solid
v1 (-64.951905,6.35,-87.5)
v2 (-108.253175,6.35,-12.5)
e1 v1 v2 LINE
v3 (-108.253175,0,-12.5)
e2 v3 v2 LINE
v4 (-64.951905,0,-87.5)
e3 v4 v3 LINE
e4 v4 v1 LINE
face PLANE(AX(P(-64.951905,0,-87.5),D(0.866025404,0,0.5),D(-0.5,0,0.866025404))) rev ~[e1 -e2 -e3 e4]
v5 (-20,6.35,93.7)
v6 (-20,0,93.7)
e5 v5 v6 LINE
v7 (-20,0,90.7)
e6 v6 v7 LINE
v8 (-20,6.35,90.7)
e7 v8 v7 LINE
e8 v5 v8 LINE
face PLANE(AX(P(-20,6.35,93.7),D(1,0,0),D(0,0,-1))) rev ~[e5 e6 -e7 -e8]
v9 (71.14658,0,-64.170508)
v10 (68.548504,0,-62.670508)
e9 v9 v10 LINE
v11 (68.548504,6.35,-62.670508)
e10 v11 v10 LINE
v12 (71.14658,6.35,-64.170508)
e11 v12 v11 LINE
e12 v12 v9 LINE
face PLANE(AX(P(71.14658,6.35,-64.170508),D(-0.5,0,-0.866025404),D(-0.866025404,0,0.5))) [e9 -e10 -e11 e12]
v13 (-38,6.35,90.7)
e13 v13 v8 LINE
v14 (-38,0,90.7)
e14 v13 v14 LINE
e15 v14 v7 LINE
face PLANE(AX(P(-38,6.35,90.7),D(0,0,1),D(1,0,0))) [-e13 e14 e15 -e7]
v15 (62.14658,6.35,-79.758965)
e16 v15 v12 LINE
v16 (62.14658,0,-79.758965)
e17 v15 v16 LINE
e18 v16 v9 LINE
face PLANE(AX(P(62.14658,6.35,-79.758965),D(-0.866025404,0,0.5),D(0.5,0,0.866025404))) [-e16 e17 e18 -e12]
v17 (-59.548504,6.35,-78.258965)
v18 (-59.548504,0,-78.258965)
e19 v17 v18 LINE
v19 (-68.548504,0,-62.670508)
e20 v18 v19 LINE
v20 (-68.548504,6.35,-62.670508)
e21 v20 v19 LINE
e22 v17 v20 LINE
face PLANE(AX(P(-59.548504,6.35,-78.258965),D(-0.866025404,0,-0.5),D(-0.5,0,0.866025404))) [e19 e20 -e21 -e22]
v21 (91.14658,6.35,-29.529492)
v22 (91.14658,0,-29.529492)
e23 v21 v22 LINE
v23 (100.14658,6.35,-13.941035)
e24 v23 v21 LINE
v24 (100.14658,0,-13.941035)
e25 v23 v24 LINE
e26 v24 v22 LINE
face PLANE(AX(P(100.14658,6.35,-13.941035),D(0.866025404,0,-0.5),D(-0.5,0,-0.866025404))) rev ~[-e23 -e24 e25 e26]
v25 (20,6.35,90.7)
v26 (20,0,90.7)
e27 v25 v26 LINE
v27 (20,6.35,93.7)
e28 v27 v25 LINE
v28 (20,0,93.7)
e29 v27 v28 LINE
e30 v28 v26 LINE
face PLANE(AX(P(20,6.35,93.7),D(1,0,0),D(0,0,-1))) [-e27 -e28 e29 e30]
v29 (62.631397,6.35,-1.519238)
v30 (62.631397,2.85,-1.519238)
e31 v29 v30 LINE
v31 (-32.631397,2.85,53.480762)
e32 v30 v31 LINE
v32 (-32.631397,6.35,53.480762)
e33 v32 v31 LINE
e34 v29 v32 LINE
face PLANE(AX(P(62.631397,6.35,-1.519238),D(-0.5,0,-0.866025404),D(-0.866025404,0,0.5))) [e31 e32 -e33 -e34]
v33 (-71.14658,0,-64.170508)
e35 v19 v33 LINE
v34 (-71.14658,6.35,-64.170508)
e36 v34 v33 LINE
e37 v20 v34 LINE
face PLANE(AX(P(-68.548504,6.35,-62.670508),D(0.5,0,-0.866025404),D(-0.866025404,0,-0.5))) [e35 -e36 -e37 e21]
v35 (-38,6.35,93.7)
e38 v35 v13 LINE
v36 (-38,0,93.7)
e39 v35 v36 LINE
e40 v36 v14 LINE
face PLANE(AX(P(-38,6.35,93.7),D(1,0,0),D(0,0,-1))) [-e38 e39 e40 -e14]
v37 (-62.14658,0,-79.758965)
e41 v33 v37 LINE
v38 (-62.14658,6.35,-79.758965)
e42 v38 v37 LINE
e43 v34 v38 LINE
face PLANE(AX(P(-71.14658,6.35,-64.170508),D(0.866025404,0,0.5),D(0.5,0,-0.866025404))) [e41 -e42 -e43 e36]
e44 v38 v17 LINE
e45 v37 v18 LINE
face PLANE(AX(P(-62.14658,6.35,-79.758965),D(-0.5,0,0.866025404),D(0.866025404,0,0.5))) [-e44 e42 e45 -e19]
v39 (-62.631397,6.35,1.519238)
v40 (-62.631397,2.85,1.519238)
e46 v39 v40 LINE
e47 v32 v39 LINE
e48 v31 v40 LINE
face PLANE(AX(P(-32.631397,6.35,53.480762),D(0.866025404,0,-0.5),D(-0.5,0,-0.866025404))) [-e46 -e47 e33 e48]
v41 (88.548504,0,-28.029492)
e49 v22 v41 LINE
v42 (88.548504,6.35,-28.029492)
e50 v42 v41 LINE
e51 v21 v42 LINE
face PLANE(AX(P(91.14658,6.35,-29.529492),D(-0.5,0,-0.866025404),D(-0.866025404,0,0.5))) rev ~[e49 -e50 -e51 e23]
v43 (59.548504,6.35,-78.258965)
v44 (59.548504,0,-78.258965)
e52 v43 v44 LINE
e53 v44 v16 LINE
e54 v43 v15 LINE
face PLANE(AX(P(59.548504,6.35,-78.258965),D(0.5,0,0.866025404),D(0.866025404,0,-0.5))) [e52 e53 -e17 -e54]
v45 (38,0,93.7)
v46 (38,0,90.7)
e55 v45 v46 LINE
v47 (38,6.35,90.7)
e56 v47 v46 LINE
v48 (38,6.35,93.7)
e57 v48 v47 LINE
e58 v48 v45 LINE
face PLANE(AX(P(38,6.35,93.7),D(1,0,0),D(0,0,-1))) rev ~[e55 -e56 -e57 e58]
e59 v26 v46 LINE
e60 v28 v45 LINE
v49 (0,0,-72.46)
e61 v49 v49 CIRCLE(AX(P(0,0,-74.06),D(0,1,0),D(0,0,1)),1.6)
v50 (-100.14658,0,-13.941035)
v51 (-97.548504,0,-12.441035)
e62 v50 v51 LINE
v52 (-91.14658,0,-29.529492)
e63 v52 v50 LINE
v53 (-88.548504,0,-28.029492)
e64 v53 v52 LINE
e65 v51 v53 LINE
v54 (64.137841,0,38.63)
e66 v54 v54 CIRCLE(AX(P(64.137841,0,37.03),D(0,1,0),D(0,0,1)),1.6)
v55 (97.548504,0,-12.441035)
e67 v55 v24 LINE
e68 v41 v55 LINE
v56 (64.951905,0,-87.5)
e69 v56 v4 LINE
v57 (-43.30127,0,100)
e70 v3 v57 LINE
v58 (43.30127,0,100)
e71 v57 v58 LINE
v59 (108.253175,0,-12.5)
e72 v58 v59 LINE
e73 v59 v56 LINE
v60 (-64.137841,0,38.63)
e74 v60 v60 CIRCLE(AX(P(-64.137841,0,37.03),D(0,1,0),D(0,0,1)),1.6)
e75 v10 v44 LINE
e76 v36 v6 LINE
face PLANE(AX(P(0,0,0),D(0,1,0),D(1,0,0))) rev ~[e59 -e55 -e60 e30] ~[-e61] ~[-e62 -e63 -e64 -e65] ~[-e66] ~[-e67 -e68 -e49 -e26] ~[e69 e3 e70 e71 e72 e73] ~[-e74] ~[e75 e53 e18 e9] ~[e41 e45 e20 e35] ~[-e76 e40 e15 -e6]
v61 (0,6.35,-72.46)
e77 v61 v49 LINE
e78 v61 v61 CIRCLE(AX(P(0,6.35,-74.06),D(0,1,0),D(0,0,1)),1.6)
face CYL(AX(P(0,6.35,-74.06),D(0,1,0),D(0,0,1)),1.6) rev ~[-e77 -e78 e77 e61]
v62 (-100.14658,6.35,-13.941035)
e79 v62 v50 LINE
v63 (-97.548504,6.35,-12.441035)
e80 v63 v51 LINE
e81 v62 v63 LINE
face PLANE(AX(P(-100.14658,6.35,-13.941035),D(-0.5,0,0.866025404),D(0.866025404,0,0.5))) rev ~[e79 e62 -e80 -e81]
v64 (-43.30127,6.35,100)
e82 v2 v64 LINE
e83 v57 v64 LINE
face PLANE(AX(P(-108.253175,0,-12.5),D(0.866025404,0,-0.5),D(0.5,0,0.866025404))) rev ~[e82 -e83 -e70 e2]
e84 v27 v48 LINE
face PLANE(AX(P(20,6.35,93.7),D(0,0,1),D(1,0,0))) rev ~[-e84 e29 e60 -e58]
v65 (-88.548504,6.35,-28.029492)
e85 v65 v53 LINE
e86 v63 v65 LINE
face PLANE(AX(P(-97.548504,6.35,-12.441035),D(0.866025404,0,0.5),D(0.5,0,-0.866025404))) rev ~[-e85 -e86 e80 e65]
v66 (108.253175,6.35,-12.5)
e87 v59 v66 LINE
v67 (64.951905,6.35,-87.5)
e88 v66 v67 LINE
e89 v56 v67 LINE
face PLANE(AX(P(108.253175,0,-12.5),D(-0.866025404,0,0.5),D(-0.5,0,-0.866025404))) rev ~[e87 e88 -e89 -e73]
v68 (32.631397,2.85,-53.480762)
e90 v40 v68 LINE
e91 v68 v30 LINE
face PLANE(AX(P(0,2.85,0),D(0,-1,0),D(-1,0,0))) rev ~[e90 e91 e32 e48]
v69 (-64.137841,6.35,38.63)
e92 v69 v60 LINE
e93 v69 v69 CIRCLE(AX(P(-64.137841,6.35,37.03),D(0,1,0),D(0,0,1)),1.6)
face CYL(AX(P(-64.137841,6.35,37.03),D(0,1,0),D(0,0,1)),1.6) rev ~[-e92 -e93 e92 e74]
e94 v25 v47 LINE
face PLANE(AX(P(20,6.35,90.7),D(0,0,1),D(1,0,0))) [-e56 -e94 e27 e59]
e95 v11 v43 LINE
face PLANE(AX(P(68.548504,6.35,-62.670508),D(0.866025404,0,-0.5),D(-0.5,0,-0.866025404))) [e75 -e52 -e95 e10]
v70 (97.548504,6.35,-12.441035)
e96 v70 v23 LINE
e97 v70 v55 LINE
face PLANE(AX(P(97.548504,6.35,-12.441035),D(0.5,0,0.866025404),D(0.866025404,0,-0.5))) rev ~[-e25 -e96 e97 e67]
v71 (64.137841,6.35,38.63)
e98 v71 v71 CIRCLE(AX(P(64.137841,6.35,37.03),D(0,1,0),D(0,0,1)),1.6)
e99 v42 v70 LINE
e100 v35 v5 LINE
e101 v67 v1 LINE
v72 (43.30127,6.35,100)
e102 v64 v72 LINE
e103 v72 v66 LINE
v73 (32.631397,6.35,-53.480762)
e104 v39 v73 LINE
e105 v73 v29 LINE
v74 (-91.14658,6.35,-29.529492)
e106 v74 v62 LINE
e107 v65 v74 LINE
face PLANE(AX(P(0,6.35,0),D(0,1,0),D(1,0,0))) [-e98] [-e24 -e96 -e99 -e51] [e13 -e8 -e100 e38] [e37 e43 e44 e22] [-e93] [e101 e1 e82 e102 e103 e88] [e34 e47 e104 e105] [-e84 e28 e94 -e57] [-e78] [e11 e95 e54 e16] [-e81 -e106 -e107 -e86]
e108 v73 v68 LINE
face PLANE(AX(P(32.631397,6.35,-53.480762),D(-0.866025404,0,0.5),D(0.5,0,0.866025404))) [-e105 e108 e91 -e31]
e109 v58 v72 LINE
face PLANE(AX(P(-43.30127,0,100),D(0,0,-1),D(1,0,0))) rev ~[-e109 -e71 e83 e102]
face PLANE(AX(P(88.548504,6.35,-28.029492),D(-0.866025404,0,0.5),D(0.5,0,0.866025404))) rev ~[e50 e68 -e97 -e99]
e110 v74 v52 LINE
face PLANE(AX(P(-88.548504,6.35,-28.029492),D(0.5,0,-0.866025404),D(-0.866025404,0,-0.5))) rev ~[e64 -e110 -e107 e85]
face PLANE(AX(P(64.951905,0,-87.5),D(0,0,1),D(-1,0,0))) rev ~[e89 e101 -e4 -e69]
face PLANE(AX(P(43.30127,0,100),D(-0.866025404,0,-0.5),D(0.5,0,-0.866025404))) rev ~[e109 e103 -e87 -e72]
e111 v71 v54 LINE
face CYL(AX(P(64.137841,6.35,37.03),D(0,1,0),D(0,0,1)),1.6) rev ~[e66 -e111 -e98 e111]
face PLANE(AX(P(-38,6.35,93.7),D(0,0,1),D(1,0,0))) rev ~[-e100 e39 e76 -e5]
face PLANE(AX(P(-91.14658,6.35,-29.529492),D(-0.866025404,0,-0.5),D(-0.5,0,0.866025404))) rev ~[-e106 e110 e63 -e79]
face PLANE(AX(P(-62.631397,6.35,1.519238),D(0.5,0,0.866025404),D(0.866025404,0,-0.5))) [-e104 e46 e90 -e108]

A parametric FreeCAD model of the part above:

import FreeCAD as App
import Part
import Sketcher
from FreeCAD import Vector
Q = App.Units.Quantity

doc = App.newDocument("Part")
params = doc.addObject("Spreadsheet::Sheet", "Params")
for row, (alias, value) in enumerate([
    ("pad1_length", "6.35 mm"),
    ("sketch2_width", "18 mm"),
    ("sketch2_height", "3 mm"),
    ("sketch2_length", "3 mm"),
    ("sketch2_length2", "18 mm"),
    ("sketch3_length", "110 mm"),
    ("sketch3_length2", "60 mm"),
    ("pocket2_length", "3.5 mm"),
    ("sketch4_diameter", "3.2 mm"),
], start=1):
    params.set(f"A{row}", alias)
    params.set(f"B{row}", "=" + value)
    params.setAlias(f"B{row}", alias)

body = doc.addObject("PartDesign::Body", "Body")

# Sketch on XZ plane
sketch1 = body.newObject("Sketcher::SketchObject", "Sketch")
sketch1.AttachmentSupport = (doc.getObject("XZ_Plane"), [""])
sketch1.MapMode = "FlatFace"
sketch1.addGeometry([
    Part.LineSegment(Vector(65, -88, 0), Vector(-65, -88, 0)),  # 0
    Part.LineSegment(Vector(-65, -88, 0), Vector(-108, -12, 0)),  # 1
    Part.LineSegment(Vector(-108, -12, 0), Vector(-43, 100, 0)),  # 2
    Part.LineSegment(Vector(-43, 100, 0), Vector(43, 100, 0)),  # 3
    Part.LineSegment(Vector(43, 100, 0), Vector(108, -12, 0)),  # 4
    Part.LineSegment(Vector(108, -12, 0), Vector(65, -88, 0)),  # 5
], False)
sketch1.addConstraint([
    Sketcher.Constraint("Coincident", 0, 2, 1, 1),
    Sketcher.Constraint("Coincident", 1, 2, 2, 1),
    Sketcher.Constraint("Coincident", 2, 2, 3, 1),
    Sketcher.Constraint("Coincident", 3, 2, 4, 1),
    Sketcher.Constraint("Coincident", 4, 2, 5, 1),
    Sketcher.Constraint("Coincident", 5, 2, 0, 1),
    Sketcher.Constraint("Horizontal", 0),
    Sketcher.Constraint("Horizontal", 3),
    Sketcher.Constraint("Symmetric", 1, 2, 4, 2, -2),
    Sketcher.Constraint("Parallel", 1, 4),
    Sketcher.Constraint("Parallel", 2, 5),
    Sketcher.Constraint("Equal", 2, 4),
    Sketcher.Constraint("Angle", 1, Q("120 deg")),
    Sketcher.Constraint("DistanceY", -1, 1, 2, 2, 100.0),
    Sketcher.Constraint("DistanceY", 0, 2, 1, 2, 75.0),
    Sketcher.Constraint("DistanceY", 0, 2, -1, 1, 87.5),
    Sketcher.Constraint("DistanceX", 0, 2, 0, 1, 129.903811),
])
pad1 = body.newObject("PartDesign::Pad", "Pad")
pad1.Profile = sketch1
pad1.setExpression("Length", "Params.pad1_length")
pad1.Reversed = True

# Sketch on XZ plane
sketch2 = body.newObject("Sketcher::SketchObject", "Sketch001")
sketch2.AttachmentSupport = (doc.getObject("XZ_Plane"), [""])
sketch2.MapMode = "FlatFace"
sketch2.AttachmentOffset = App.Placement(Vector(0, 0, -6.35), App.Rotation())
sketch2.addGeometry([
    Part.LineSegment(Vector(-38, 90.7, 0), Vector(-38, 93.7, 0)),  # 0
    Part.LineSegment(Vector(-38, 93.7, 0), Vector(-20, 93.7, 0)),  # 1
    Part.LineSegment(Vector(-20, 93.7, 0), Vector(-20, 90.7, 0)),  # 2
    Part.LineSegment(Vector(-20, 90.7, 0), Vector(-38, 90.7, 0)),  # 3
    Part.LineSegment(Vector(20, 90.7, 0), Vector(20, 93.7, 0)),  # 4
    Part.LineSegment(Vector(20, 93.7, 0), Vector(38, 93.7, 0)),  # 5
    Part.LineSegment(Vector(38, 93.7, 0), Vector(38, 90.7, 0)),  # 6
    Part.LineSegment(Vector(38, 90.7, 0), Vector(20, 90.7, 0)),  # 7
    Part.LineSegment(Vector(-59.5, -78.3, 0), Vector(-62.1, -79.8, 0)),  # 8
    Part.LineSegment(Vector(-62.1, -79.8, 0), Vector(-71.1, -64.2, 0)),  # 9
    Part.LineSegment(Vector(-71.1, -64.2, 0), Vector(-68.5, -62.7, 0)),  # 10
    Part.LineSegment(Vector(-68.5, -62.7, 0), Vector(-59.5, -78.3, 0)),  # 11
    Part.LineSegment(Vector(-97.5, -12.4, 0), Vector(-88.5, -28, 0)),  # 12
    Part.LineSegment(Vector(-88.5, -28, 0), Vector(-91.1, -29.5, 0)),  # 13
    Part.LineSegment(Vector(-91.1, -29.5, 0), Vector(-100.1, -13.9, 0)),  # 14
    Part.LineSegment(Vector(-100.1, -13.9, 0), Vector(-97.5, -12.4, 0)),  # 15
    Part.LineSegment(Vector(100.1, -13.9, 0), Vector(91.1, -29.5, 0)),  # 16
    Part.LineSegment(Vector(91.1, -29.5, 0), Vector(88.5, -28, 0)),  # 17
    Part.LineSegment(Vector(88.5, -28, 0), Vector(97.5, -12.4, 0)),  # 18
    Part.LineSegment(Vector(97.5, -12.4, 0), Vector(100.1, -13.9, 0)),  # 19
    Part.LineSegment(Vector(62.1, -79.8, 0), Vector(59.5, -78.3, 0)),  # 20
    Part.LineSegment(Vector(59.5, -78.3, 0), Vector(68.5, -62.7, 0)),  # 21
    Part.LineSegment(Vector(68.5, -62.7, 0), Vector(71.1, -64.2, 0)),  # 22
    Part.LineSegment(Vector(71.1, -64.2, 0), Vector(62.1, -79.8, 0)),  # 23
], False)
sketch2.addConstraint([
    Sketcher.Constraint("Coincident", 0, 2, 1, 1),
    Sketcher.Constraint("Coincident", 1, 2, 2, 1),
    Sketcher.Constraint("Coincident", 2, 2, 3, 1),
    Sketcher.Constraint("Coincident", 3, 2, 0, 1),
    Sketcher.Constraint("Coincident", 4, 2, 5, 1),
    Sketcher.Constraint("Coincident", 5, 2, 6, 1),
    Sketcher.Constraint("Coincident", 6, 2, 7, 1),
    Sketcher.Constraint("Coincident", 7, 2, 4, 1),
    Sketcher.Constraint("Coincident", 8, 2, 9, 1),
    Sketcher.Constraint("Coincident", 9, 2, 10, 1),
    Sketcher.Constraint("Coincident", 10, 2, 11, 1),
    Sketcher.Constraint("Coincident", 11, 2, 8, 1),
    Sketcher.Constraint("Coincident", 12, 2, 13, 1),
    Sketcher.Constraint("Coincident", 13, 2, 14, 1),
    Sketcher.Constraint("Coincident", 14, 2, 15, 1),
    Sketcher.Constraint("Coincident", 15, 2, 12, 1),
    Sketcher.Constraint("Coincident", 16, 2, 17, 1),
    Sketcher.Constraint("Coincident", 17, 2, 18, 1),
    Sketcher.Constraint("Coincident", 18, 2, 19, 1),
    Sketcher.Constraint("Coincident", 19, 2, 16, 1),
    Sketcher.Constraint("Coincident", 20, 2, 21, 1),
    Sketcher.Constraint("Coincident", 21, 2, 22, 1),
    Sketcher.Constraint("Coincident", 22, 2, 23, 1),
    Sketcher.Constraint("Coincident", 23, 2, 20, 1),
    Sketcher.Constraint("Vertical", 0),
    Sketcher.Constraint("Horizontal", 1),
    Sketcher.Constraint("Vertical", 2),
    Sketcher.Constraint("Horizontal", 3),
    Sketcher.Constraint("Vertical", 4),
    Sketcher.Constraint("Horizontal", 5),
    Sketcher.Constraint("Vertical", 6),
    Sketcher.Constraint("Horizontal", 7),
    Sketcher.Constraint("Symmetric", 1, 2, 4, 2, -2),
    Sketcher.Constraint("Symmetric", 3, 2, 6, 2, -2),
    Sketcher.Constraint("Symmetric", 13, 2, 16, 2, -2),
    Sketcher.Constraint("Symmetric", 12, 2, 17, 2, -2),
    Sketcher.Constraint("Symmetric", 15, 2, 18, 2, -2),
    Sketcher.Constraint("Symmetric", 14, 2, 19, 2, -2),
    Sketcher.Constraint("Symmetric", 11, 2, 20, 2, -2),
    Sketcher.Constraint("Symmetric", 10, 2, 21, 2, -2),
    Sketcher.Constraint("Symmetric", 9, 2, 22, 2, -2),
    Sketcher.Constraint("Symmetric", 8, 2, 23, 2, -2),
    Sketcher.Constraint("Perpendicular", 8, 9),
    Sketcher.Constraint("Perpendicular", 9, 10),
    Sketcher.Constraint("Perpendicular", 10, 11),
    Sketcher.Constraint("Parallel", 11, 12),
    Sketcher.Constraint("Perpendicular", 12, 13),
    Sketcher.Constraint("Perpendicular", 13, 14),
    Sketcher.Constraint("Perpendicular", 14, 15),
    Sketcher.Constraint("Equal", 11, 12),
    Sketcher.Constraint("Equal", 10, 13),
    Sketcher.Constraint("DistanceX", 1, 1, 1, 2, 18.0),
    Sketcher.Constraint("DistanceY", 0, 1, 0, 2, 3.0),
    Sketcher.Constraint("Angle", 8, Q("-150 deg")),
    Sketcher.Constraint("Distance", 8, 3.0),
    Sketcher.Constraint("Distance", 9, 18.0),
    Sketcher.Constraint("DistanceX", 0, 2, -1, 1, 38.0),
    Sketcher.Constraint("DistanceX", 12, 2, 10, 2, 20.0),
    Sketcher.Constraint("DistanceY", -1, 1, 0, 2, 93.7),
    Sketcher.Constraint("DistanceX", 8, 2, -1, 1, 62.14658),
    Sketcher.Constraint("DistanceY", 9, 2, -1, 1, 64.170508),
    Sketcher.Constraint("DistanceY", 12, 2, -1, 1, 28.029492),
])
sketch2.setExpression("Constraints[51]", "Params.sketch2_width")
sketch2.setExpression("Constraints[52]", "Params.sketch2_height")
sketch2.setExpression("Constraints[54]", "Params.sketch2_length")
sketch2.setExpression("Constraints[55]", "Params.sketch2_length2")
pocket1 = body.newObject("PartDesign::Pocket", "Pocket")
pocket1.Profile = sketch2
pocket1.Type = "ThroughAll"
pocket1.Reversed = True

# Sketch on XZ plane
sketch3 = body.newObject("Sketcher::SketchObject", "Sketch002")
sketch3.AttachmentSupport = (doc.getObject("XZ_Plane"), [""])
sketch3.MapMode = "FlatFace"
sketch3.AttachmentOffset = App.Placement(Vector(0, 0, -6.35), App.Rotation())
sketch3.addGeometry([
    Part.LineSegment(Vector(33, -53, 0), Vector(-63, 2, 0)),
    Part.LineSegment(Vector(-63, 2, 0), Vector(-33, 53, 0)),
    Part.LineSegment(Vector(-33, 53, 0), Vector(63, -2, 0)),
    Part.LineSegment(Vector(63, -2, 0), Vector(33, -53, 0)),
], False)
sketch3.addConstraint([
    Sketcher.Constraint("Coincident", 0, 2, 1, 1),
    Sketcher.Constraint("Coincident", 1, 2, 2, 1),
    Sketcher.Constraint("Coincident", 2, 2, 3, 1),
    Sketcher.Constraint("Coincident", 3, 2, 0, 1),
    Sketcher.Constraint("Symmetric", 0, 2, 2, 2, -1, 1),
    Sketcher.Constraint("Symmetric", 1, 2, 3, 2, -1, 1),
    Sketcher.Constraint("Perpendicular", 0, 1),
    Sketcher.Constraint("Angle", 0, Q("150 deg")),
    Sketcher.Constraint("Distance", 0, 110.0),
    Sketcher.Constraint("Distance", 1, 60.0),
])
sketch3.setExpression("Constraints[8]", "Params.sketch3_length")
sketch3.setExpression("Constraints[9]", "Params.sketch3_length2")
pocket2 = body.newObject("PartDesign::Pocket", "Pocket001")
pocket2.Profile = sketch3
pocket2.setExpression("Length", "Params.pocket2_length")
pocket2.Reversed = True

# Sketch on XZ plane
sketch4 = body.newObject("Sketcher::SketchObject", "Sketch003")
sketch4.AttachmentSupport = (doc.getObject("XZ_Plane"), [""])
sketch4.MapMode = "FlatFace"
sketch4.AttachmentOffset = App.Placement(Vector(0, 0, -6.35), App.Rotation())
sketch4.addGeometry([
    Part.Circle(Vector(-64.1, 37, 0), Vector(0, 0, 1), 1.6),
    Part.Circle(Vector(64.1, 37, 0), Vector(0, 0, 1), 1.6),
    Part.Circle(Vector(0, -74.1, 0), Vector(0, 0, 1), 1.6),
], False)
sketch4.addConstraint([
    Sketcher.Constraint("Equal", 0, 1),
    Sketcher.Constraint("Equal", 1, 2),
    Sketcher.Constraint("Symmetric", 0, 3, 1, 3, -2),
    Sketcher.Constraint("PointOnObject", 2, 3, -2),
    Sketcher.Constraint("Diameter", 0, 3.2),
    Sketcher.Constraint("DistanceY", -1, 1, 0, 3, 37.03),
    Sketcher.Constraint("DistanceY", 2, 3, -1, 1, 74.06),
    Sketcher.Constraint("DistanceX", 0, 3, -1, 1, 64.137841),
])
sketch4.setExpression("Constraints[4]", "Params.sketch4_diameter")
pocket3 = body.newObject("PartDesign::Pocket", "Pocket002")
pocket3.Profile = sketch4
pocket3.Type = "ThroughAll"
pocket3.Reversed = True

doc.recompute()
